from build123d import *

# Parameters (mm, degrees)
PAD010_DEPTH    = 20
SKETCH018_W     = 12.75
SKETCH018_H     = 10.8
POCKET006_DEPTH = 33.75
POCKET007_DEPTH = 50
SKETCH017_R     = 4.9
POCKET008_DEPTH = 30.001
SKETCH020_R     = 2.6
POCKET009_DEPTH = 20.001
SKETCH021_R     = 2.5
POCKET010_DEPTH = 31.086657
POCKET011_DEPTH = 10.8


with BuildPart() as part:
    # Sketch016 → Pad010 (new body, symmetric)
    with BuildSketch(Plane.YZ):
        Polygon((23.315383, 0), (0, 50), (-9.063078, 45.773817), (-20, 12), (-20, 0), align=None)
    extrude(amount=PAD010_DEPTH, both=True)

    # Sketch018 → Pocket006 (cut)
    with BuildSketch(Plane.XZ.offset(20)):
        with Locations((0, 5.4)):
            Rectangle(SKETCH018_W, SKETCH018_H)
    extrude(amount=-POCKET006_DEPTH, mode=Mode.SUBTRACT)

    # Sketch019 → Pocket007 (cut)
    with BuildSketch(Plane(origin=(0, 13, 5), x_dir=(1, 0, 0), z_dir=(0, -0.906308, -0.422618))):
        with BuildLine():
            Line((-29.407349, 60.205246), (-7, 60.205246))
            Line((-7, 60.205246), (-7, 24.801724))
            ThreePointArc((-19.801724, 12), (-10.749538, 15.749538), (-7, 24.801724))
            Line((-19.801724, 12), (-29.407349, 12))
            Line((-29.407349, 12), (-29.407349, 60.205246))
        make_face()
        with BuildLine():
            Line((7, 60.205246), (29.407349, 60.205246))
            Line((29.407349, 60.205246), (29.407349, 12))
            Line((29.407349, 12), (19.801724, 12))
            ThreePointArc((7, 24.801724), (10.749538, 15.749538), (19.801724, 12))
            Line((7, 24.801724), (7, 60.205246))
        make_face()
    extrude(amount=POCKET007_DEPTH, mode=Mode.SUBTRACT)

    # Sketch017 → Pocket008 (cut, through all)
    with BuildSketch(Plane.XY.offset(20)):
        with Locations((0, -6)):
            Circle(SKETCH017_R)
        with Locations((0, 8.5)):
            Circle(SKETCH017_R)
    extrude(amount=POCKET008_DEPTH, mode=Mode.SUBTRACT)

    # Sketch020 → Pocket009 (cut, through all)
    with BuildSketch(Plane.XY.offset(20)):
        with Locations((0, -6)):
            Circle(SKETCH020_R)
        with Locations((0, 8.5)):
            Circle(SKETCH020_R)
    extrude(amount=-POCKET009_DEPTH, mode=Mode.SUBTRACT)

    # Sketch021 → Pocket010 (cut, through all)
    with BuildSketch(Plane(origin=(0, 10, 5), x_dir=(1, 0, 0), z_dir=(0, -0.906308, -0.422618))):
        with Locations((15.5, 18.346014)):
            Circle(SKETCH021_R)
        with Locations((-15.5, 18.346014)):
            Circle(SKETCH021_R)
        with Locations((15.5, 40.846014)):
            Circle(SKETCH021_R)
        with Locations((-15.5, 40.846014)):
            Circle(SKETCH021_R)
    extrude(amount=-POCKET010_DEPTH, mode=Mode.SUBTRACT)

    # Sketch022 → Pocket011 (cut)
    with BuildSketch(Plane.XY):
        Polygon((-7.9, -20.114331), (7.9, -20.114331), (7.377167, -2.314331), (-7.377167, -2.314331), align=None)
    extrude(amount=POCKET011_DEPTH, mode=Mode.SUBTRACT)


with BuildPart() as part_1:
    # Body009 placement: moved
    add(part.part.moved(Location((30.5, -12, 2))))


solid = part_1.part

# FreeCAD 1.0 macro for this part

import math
import FreeCAD as App
import Part
import Sketcher
Q = App.Units.Quantity

doc = App.newDocument("Part")
body = doc.addObject("PartDesign::Body", "Body")

# Sketch on YZ plane
sketch1 = body.newObject("Sketcher::SketchObject", "Sketch")
sketch1.AttachmentSupport = (doc.getObject("YZ_Plane"), [""])
sketch1.MapMode = "FlatFace"
sketch1.addGeometry([
    Part.LineSegment(App.Vector(23, 0, 0), App.Vector(0, 50, 0)),  # 0
    Part.LineSegment(App.Vector(0, 50, 0), App.Vector(-9, 46, 0)),  # 1
    Part.LineSegment(App.Vector(-9, 46, 0), App.Vector(-20, 12, 0)),  # 2
    Part.LineSegment(App.Vector(-20, 12, 0), App.Vector(-20, 0, 0)),  # 3
    Part.LineSegment(App.Vector(-20, 0, 0), App.Vector(23, 0, 0)),  # 4
], False)
sketch1.addConstraint([
    Sketcher.Constraint("Coincident", 0, 2, 1, 1),
    Sketcher.Constraint("Coincident", 1, 2, 2, 1),
    Sketcher.Constraint("Coincident", 2, 2, 3, 1),
    Sketcher.Constraint("Coincident", 3, 2, 4, 1),
    Sketcher.Constraint("Coincident", 4, 2, 0, 1),
    Sketcher.Constraint("Vertical", 3),
    Sketcher.Constraint("Horizontal", 4),
    Sketcher.Constraint("PointOnObject", 0, 2, -2),
    Sketcher.Constraint("PointOnObject", 3, 2, -1),
    Sketcher.Constraint("Perpendicular", 0, 1),
    Sketcher.Constraint("DistanceY", 3, 2, 3, 1, 12.0),
    Sketcher.Constraint("Angle", 0, Q("115 deg")),
    Sketcher.Constraint("Distance", 1, 10.0),
    Sketcher.Constraint("DistanceY", -1, 1, 0, 2, 50.0),
    Sketcher.Constraint("DistanceX", 2, 2, -1, 1, 20.0),
])
pad1 = body.newObject("PartDesign::Pad", "Pad")
pad1.Profile = sketch1
pad1.Length = 40
pad1.Midplane = True

# Sketch on XZ plane
sketch2 = body.newObject("Sketcher::SketchObject", "Sketch001")
sketch2.AttachmentSupport = (doc.getObject("XZ_Plane"), [""])
sketch2.MapMode = "FlatFace"
sketch2.AttachmentOffset = App.Placement(App.Vector(0, 0, 20), App.Rotation())
sketch2.addGeometry([
    Part.LineSegment(App.Vector(-6, 11, 0), App.Vector(-6, 0, 0)),
    Part.LineSegment(App.Vector(-6, 0, 0), App.Vector(6, 0, 0)),
    Part.LineSegment(App.Vector(6, 0, 0), App.Vector(6, 11, 0)),
    Part.LineSegment(App.Vector(6, 11, 0), App.Vector(-6, 11, 0)),
], False)
sketch2.addConstraint([
    Sketcher.Constraint("Coincident", 0, 2, 1, 1),
    Sketcher.Constraint("Coincident", 1, 2, 2, 1),
    Sketcher.Constraint("Coincident", 2, 2, 3, 1),
    Sketcher.Constraint("Coincident", 3, 2, 0, 1),
    Sketcher.Constraint("Vertical", 0),
    Sketcher.Constraint("Horizontal", 1),
    Sketcher.Constraint("Vertical", 2),
    Sketcher.Constraint("Horizontal", 3),
    Sketcher.Constraint("Symmetric", 0, 2, 1, 2, -1, 1),
    Sketcher.Constraint("DistanceY", 0, 2, 0, 1, 10.8),
    Sketcher.Constraint("DistanceX", 1, 1, 1, 2, 12.75),
])
pocket1 = body.newObject("PartDesign::Pocket", "Pocket")
pocket1.Profile = sketch2
pocket1.Length = 33.75

# Sketch on an angled plane
sketch3 = body.newObject("Sketcher::SketchObject", "Sketch002")
sketch3.Placement = App.Placement(App.Vector(0, 13, 5), App.Rotation(App.Vector(1, 0, 0), App.Vector(0, -0.422617965, 0.906307925), App.Vector(0, -0.906307925, -0.422617965), "ZXY"))
sketch3.addGeometry([
    Part.LineSegment(App.Vector(-7, 60, 0), App.Vector(-29, 60, 0)),  # 0
    Part.LineSegment(App.Vector(-29, 60, 0), App.Vector(-29, 12, 0)),  # 1
    Part.LineSegment(App.Vector(-29, 12, 0), App.Vector(-20, 12, 0)),  # 2
    Part.ArcOfCircle(Part.Circle(App.Vector(-20, 25, 0), App.Vector(0, 0, 1), 13), math.radians(-90), math.radians(0)),  # 3
    Part.LineSegment(App.Vector(-7, 25, 0), App.Vector(-7, 60, 0)),  # 4
    Part.LineSegment(App.Vector(29, 60, 0), App.Vector(7, 60, 0)),  # 5
    Part.LineSegment(App.Vector(7, 60, 0), App.Vector(7, 25, 0)),  # 6
    Part.ArcOfCircle(Part.Circle(App.Vector(20, 25, 0), App.Vector(0, 0, 1), 13), math.radians(180), math.radians(270)),  # 7
    Part.LineSegment(App.Vector(20, 12, 0), App.Vector(29, 12, 0)),  # 8
    Part.LineSegment(App.Vector(29, 12, 0), App.Vector(29, 60, 0)),  # 9
], False)
sketch3.addConstraint([
    Sketcher.Constraint("Coincident", 0, 2, 1, 1),
    Sketcher.Constraint("Coincident", 1, 2, 2, 1),
    Sketcher.Constraint("Tangent", 2, 2, 3, 1),
    Sketcher.Constraint("Tangent", 3, 2, 4, 1),
    Sketcher.Constraint("Coincident", 4, 2, 0, 1),
    Sketcher.Constraint("Coincident", 5, 2, 6, 1),
    Sketcher.Constraint("Tangent", 6, 2, 7, 1),
    Sketcher.Constraint("Tangent", 7, 2, 8, 1),
    Sketcher.Constraint("Coincident", 8, 2, 9, 1),
    Sketcher.Constraint("Coincident", 9, 2, 5, 1),
    Sketcher.Constraint("Horizontal", 0),
    Sketcher.Constraint("Vertical", 1),
    Sketcher.Constraint("Horizontal", 2),
    Sketcher.Constraint("Vertical", 4),
    Sketcher.Constraint("Horizontal", 5),
    Sketcher.Constraint("Vertical", 6),
    Sketcher.Constraint("Horizontal", 8),
    Sketcher.Constraint("Vertical", 9),
    Sketcher.Constraint("Equal", 3, 7),
    Sketcher.Constraint("Symmetric", 3, 3, 7, 3, -2),
    Sketcher.Constraint("Symmetric", 0, 2, 9, 2, -2),
    Sketcher.Constraint("DistanceY", -1, 1, 1, 2, 12.0),
    Sketcher.Constraint("DistanceX", 3, 2, -1, 1, 7.0),
    Sketcher.Constraint("Radius", 3, 12.801723),
    Sketcher.Constraint("DistanceX", 0, 2, 0, 1, 22.407349),
    Sketcher.Constraint("DistanceY", 4, 1, 4, 2, 35.403522),
])
pocket2 = body.newObject("PartDesign::Pocket", "Pocket001")
pocket2.Profile = sketch3
pocket2.Length = 50
pocket2.Reversed = True

# Sketch on XY plane
sketch4 = body.newObject("Sketcher::SketchObject", "Sketch003")
sketch4.AttachmentSupport = (doc.getObject("XY_Plane"), [""])
sketch4.MapMode = "FlatFace"
sketch4.AttachmentOffset = App.Placement(App.Vector(0, 0, 20), App.Rotation())
sketch4.addGeometry([
    Part.Circle(App.Vector(0, -6, 0), App.Vector(0, 0, 1), 4.9),
    Part.Circle(App.Vector(0, 8.5, 0), App.Vector(0, 0, 1), 4.9),
], False)
sketch4.addConstraint([
    Sketcher.Constraint("Equal", 0, 1),
    Sketcher.Constraint("PointOnObject", 0, 3, -2),
    Sketcher.Constraint("PointOnObject", 1, 3, -2),
    Sketcher.Constraint("Diameter", 0, 9.8),
    Sketcher.Constraint("DistanceY", 0, 3, -1, 1, 6.0),
    Sketcher.Constraint("DistanceY", -1, 1, 1, 3, 8.5),
])
pocket3 = body.newObject("PartDesign::Pocket", "Pocket002")
pocket3.Profile = sketch4
pocket3.Type = "ThroughAll"
pocket3.Reversed = True

# Sketch on XY plane
sketch5 = body.newObject("Sketcher::SketchObject", "Sketch004")
sketch5.AttachmentSupport = (doc.getObject("XY_Plane"), [""])
sketch5.MapMode = "FlatFace"
sketch5.AttachmentOffset = App.Placement(App.Vector(0, 0, 20), App.Rotation())
sketch5.addGeometry([
    Part.Circle(App.Vector(0, -6, 0), App.Vector(0, 0, 1), 2.6),
    Part.Circle(App.Vector(0, 8.5, 0), App.Vector(0, 0, 1), 2.6),
], False)
sketch5.addConstraint([
    Sketcher.Constraint("Equal", 0, 1),
    Sketcher.Constraint("PointOnObject", 0, 3, -2),
    Sketcher.Constraint("PointOnObject", 1, 3, -2),
    Sketcher.Constraint("Diameter", 0, 5.2),
    Sketcher.Constraint("DistanceY", 0, 3, -1, 1, 6.0),
    Sketcher.Constraint("DistanceY", -1, 1, 1, 3, 8.5),
])
pocket4 = body.newObject("PartDesign::Pocket", "Pocket003")
pocket4.Profile = sketch5
pocket4.Type = "ThroughAll"

# Sketch on an angled plane
sketch6 = body.newObject("Sketcher::SketchObject", "Sketch005")
sketch6.Placement = App.Placement(App.Vector(0, 10, 5), App.Rotation(App.Vector(1, 0, 0), App.Vector(0, -0.422617965, 0.906307925), App.Vector(0, -0.906307925, -0.422617965), "ZXY"))
sketch6.addGeometry([
    Part.Circle(App.Vector(15.5, 18.3, 0), App.Vector(0, 0, 1), 2.5),
    Part.Circle(App.Vector(-15.5, 18.3, 0), App.Vector(0, 0, 1), 2.5),
    Part.Circle(App.Vector(15.5, 40.8, 0), App.Vector(0, 0, 1), 2.5),
    Part.Circle(App.Vector(-15.5, 40.8, 0), App.Vector(0, 0, 1), 2.5),
], False)
sketch6.addConstraint([
    Sketcher.Constraint("Equal", 0, 1),
    Sketcher.Constraint("Equal", 1, 2),
    Sketcher.Constraint("Equal", 2, 3),
    Sketcher.Constraint("Symmetric", 0, 3, 1, 3, -2),
    Sketcher.Constraint("Symmetric", 2, 3, 3, 3, -2),
    Sketcher.Constraint("Vertical", 0, 3, 2, 3),
    Sketcher.Constraint("Diameter", 0, 5.0),
    Sketcher.Constraint("DistanceX", 1, 3, 0, 3, 31.0),
    Sketcher.Constraint("DistanceY", 0, 3, 2, 3, 22.5),
    Sketcher.Constraint("DistanceY", -1, 1, 0, 3, 18.346014),
])
pocket5 = body.newObject("PartDesign::Pocket", "Pocket004")
pocket5.Profile = sketch6
pocket5.Type = "ThroughAll"

# Sketch on XY plane
sketch7 = body.newObject("Sketcher::SketchObject", "Sketch006")
sketch7.AttachmentSupport = (doc.getObject("XY_Plane"), [""])
sketch7.MapMode = "FlatFace"
sketch7.addGeometry([
    Part.LineSegment(App.Vector(-8, -20, 0), App.Vector(8, -20, 0)),
    Part.LineSegment(App.Vector(8, -20, 0), App.Vector(7, -2, 0)),
    Part.LineSegment(App.Vector(7, -2, 0), App.Vector(-7, -2, 0)),
    Part.LineSegment(App.Vector(-7, -2, 0), App.Vector(-8, -20, 0)),
], False)
sketch7.addConstraint([
    Sketcher.Constraint("Coincident", 0, 2, 1, 1),
    Sketcher.Constraint("Coincident", 1, 2, 2, 1),
    Sketcher.Constraint("Coincident", 2, 2, 3, 1),
    Sketcher.Constraint("Coincident", 3, 2, 0, 1),
    Sketcher.Constraint("Horizontal", 0),
    Sketcher.Constraint("Horizontal", 2),
    Sketcher.Constraint("Equal", 1, 3),
    Sketcher.Constraint("DistanceX", 0, 1, 0, 2, 15.8),
    Sketcher.Constraint("DistanceX", -1, 1, 0, 2, 7.9),
    Sketcher.Constraint("DistanceY", 0, 2, 1, 2, 17.8),
    Sketcher.Constraint("DistanceX", 2, 2, 2, 1, 14.754334),
    Sketcher.Constraint("DistanceY", 0, 2, -1, 1, 20.114331),
])
pocket6 = body.newObject("PartDesign::Pocket", "Pocket005")
pocket6.Profile = sketch7
pocket6.Length = 10.8
pocket6.Reversed = True
body2 = doc.addObject("PartDesign::Body", "Body001")
doc.recompute()

body.Placement = App.Placement(App.Vector(30.5, -12, 2), App.Rotation(App.Vector(0, 0, 1), 0))
boolean = body2.newObject("PartDesign::Boolean", "Boolean")
boolean.Type = "Fuse"
boolean.addObjects([body])

doc.recompute()
